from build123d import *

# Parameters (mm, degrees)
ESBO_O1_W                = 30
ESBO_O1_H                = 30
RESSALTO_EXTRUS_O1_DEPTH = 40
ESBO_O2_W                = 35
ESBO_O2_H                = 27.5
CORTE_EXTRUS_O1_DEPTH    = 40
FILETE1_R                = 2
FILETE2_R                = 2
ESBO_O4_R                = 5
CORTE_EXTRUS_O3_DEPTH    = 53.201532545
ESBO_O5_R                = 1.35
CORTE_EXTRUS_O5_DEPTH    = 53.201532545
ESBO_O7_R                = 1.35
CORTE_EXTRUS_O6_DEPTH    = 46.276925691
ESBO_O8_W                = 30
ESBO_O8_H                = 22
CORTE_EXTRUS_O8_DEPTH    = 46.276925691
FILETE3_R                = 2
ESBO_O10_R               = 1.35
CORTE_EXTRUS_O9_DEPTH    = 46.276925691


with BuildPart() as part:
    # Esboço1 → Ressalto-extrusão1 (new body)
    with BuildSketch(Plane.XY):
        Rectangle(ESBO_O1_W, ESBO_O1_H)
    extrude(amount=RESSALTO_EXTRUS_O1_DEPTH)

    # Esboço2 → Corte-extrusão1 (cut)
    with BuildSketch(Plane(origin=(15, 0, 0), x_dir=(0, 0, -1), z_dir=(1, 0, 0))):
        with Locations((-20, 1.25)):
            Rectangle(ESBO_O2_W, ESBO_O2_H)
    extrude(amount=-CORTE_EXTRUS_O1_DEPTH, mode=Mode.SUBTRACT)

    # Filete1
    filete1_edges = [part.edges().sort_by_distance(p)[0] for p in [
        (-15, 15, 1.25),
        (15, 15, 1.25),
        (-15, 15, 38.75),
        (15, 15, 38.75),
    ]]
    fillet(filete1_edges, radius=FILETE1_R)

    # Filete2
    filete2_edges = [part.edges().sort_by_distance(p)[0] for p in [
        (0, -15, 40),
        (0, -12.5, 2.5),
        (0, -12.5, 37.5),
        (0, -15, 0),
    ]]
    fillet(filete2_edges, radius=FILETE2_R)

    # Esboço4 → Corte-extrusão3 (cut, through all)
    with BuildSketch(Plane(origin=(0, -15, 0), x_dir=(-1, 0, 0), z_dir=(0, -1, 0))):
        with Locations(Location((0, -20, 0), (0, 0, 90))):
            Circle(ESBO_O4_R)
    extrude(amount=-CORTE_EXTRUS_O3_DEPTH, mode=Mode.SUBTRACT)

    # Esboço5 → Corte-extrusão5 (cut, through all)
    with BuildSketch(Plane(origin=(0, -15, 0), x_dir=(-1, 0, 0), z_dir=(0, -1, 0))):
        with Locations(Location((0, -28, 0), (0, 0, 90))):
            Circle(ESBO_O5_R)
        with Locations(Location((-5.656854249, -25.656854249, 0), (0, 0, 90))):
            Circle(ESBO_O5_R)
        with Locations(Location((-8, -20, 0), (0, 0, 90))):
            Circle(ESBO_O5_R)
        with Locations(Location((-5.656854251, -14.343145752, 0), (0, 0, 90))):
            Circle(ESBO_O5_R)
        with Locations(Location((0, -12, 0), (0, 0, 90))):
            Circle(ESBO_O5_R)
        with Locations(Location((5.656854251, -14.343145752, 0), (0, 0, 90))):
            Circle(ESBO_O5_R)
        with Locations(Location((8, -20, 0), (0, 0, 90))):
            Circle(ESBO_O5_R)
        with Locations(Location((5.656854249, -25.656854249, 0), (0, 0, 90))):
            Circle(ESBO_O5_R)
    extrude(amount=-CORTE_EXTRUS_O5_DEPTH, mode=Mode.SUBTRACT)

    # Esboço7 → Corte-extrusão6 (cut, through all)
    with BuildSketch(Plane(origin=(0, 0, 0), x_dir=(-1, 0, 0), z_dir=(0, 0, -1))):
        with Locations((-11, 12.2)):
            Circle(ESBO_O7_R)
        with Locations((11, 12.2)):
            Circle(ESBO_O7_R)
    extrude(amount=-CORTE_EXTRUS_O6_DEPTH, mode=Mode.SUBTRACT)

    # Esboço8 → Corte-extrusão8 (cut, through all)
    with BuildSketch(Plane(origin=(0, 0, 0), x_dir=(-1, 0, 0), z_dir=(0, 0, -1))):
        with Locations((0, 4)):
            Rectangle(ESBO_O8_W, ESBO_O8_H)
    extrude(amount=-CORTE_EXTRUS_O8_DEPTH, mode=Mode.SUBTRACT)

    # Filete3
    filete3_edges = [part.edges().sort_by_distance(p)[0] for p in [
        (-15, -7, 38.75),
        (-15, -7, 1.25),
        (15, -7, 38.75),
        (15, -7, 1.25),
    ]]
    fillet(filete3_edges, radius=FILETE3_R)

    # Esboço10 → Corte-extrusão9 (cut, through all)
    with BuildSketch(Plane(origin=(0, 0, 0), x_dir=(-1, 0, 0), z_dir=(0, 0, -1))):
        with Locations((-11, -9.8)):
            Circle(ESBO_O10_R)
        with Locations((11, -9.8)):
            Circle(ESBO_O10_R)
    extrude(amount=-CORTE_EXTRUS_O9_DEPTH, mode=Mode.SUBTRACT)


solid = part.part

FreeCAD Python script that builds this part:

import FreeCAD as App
import Part
import Sketcher

V = App.Vector


def edges_at(feature, points):
    """Names of the edges that pass closest to the given points."""
    edges = feature.Shape.Edges
    near = lambda p: min(range(len(edges)), key=lambda i: edges[i].distToShape(Part.Vertex(*p))[0])
    return sorted({f"Edge{near(p) + 1}" for p in points})

doc = App.newDocument("Part")
params = doc.addObject("Spreadsheet::Sheet", "Params")
for row, (alias, value) in enumerate([
    ("sketch1_width", "30 mm"),
    ("pad1_length", "40 mm"),
    ("sketch2_height", "35 mm"),
    ("sketch2_width", "27.5 mm"),
    ("pocket1_length", "40 mm"),
    ("fillet_radius", "2 mm"),
    ("fillet2_radius", "2 mm"),
    ("sketch3_diameter", "10 mm"),
    ("sketch4_diameter", "2.7 mm"),
    ("sketch5_diameter", "2.7 mm"),
    ("sketch6_width", "30 mm"),
    ("sketch6_height", "22 mm"),
    ("fillet3_radius", "2 mm"),
    ("sketch7_diameter", "2.7 mm"),
], start=1):
    params.set(f"A{row}", alias)
    params.set(f"B{row}", "=" + value)
    params.setAlias(f"B{row}", alias)

body = doc.addObject("PartDesign::Body", "Body")

# Sketch on XY plane
sketch1 = body.newObject("Sketcher::SketchObject", "Sketch")
sketch1.AttachmentSupport = (doc.getObject("XY_Plane"), [""])
sketch1.MapMode = "FlatFace"
sketch1.addGeometry([
    Part.LineSegment(V(-15, 15, 0), V(-15, -15, 0)),
    Part.LineSegment(V(-15, -15, 0), V(15, -15, 0)),
    Part.LineSegment(V(15, -15, 0), V(15, 15, 0)),
    Part.LineSegment(V(15, 15, 0), V(-15, 15, 0)),
], False)
sketch1.addConstraint([
    Sketcher.Constraint("Coincident", 0, 2, 1, 1),
    Sketcher.Constraint("Coincident", 1, 2, 2, 1),
    Sketcher.Constraint("Coincident", 2, 2, 3, 1),
    Sketcher.Constraint("Coincident", 3, 2, 0, 1),
    Sketcher.Constraint("Vertical", 0),
    Sketcher.Constraint("Horizontal", 1),
    Sketcher.Constraint("Vertical", 2),
    Sketcher.Constraint("Horizontal", 3),
    Sketcher.Constraint("Symmetric", 0, 2, 2, 2, -1, 1),
    Sketcher.Constraint("Equal", 3, 0),
    Sketcher.Constraint("DistanceX", 1, 1, 1, 2, 30.0),
])
sketch1.setExpression("Constraints[10]", "Params.sketch1_width")
pad1 = body.newObject("PartDesign::Pad", "Pad")
pad1.Profile = sketch1
pad1.setExpression("Length", "Params.pad1_length")

# Sketch on YZ plane
sketch2 = body.newObject("Sketcher::SketchObject", "Sketch001")
sketch2.AttachmentSupport = (doc.getObject("YZ_Plane"), [""])
sketch2.MapMode = "FlatFace"
sketch2.AttachmentOffset = App.Placement(V(0, 0, 15), App.Rotation())
sketch2.addGeometry([
    Part.LineSegment(V(15, 38, 0), V(-12, 38, 0)),
    Part.LineSegment(V(-12, 38, 0), V(-12, 2, 0)),
    Part.LineSegment(V(-12, 2, 0), V(15, 2, 0)),
    Part.LineSegment(V(15, 2, 0), V(15, 38, 0)),
], False)
sketch2.addConstraint([
    Sketcher.Constraint("Coincident", 0, 2, 1, 1),
    Sketcher.Constraint("Coincident", 1, 2, 2, 1),
    Sketcher.Constraint("Coincident", 2, 2, 3, 1),
    Sketcher.Constraint("Coincident", 3, 2, 0, 1),
    Sketcher.Constraint("Horizontal", 0),
    Sketcher.Constraint("Vertical", 1),
    Sketcher.Constraint("Horizontal", 2),
    Sketcher.Constraint("Vertical", 3),
    Sketcher.Constraint("DistanceY", 1, 2, 1, 1, 35.0),
    Sketcher.Constraint("DistanceX", 0, 2, 0, 1, 27.5),
    Sketcher.Constraint("DistanceX", -1, 1, 2, 2, 15.0),
    Sketcher.Constraint("DistanceY", -1, 1, 0, 2, 37.5),
])
sketch2.setExpression("Constraints[8]", "Params.sketch2_height")
sketch2.setExpression("Constraints[9]", "Params.sketch2_width")
pocket1 = body.newObject("PartDesign::Pocket", "Pocket")
pocket1.Profile = sketch2
pocket1.setExpression("Length", "Params.pocket1_length")
doc.recompute()

fillet = body.newObject("PartDesign::Fillet", "Fillet")
fillet.Base = (pocket1, edges_at(pocket1, [
    (-15, 15, 1.25),
    (15, 15, 1.25),
    (-15, 15, 38.75),
    (15, 15, 38.75),
]))
fillet.setExpression("Radius", "Params.fillet_radius")
doc.recompute()

fillet2 = body.newObject("PartDesign::Fillet", "Fillet001")
fillet2.Base = (fillet, edges_at(fillet, [
    (0, -15, 40),
    (0, -12.5, 2.5),
    (0, -12.5, 37.5),
    (0, -15, 0),
]))
fillet2.setExpression("Radius", "Params.fillet2_radius")

# Sketch on XZ plane
sketch3 = body.newObject("Sketcher::SketchObject", "Sketch002")
sketch3.AttachmentSupport = (doc.getObject("XZ_Plane"), [""])
sketch3.MapMode = "FlatFace"
sketch3.AttachmentOffset = App.Placement(V(0, 0, 15), App.Rotation())
sketch3.addGeometry(Part.Circle(V(0, 20, 0), V(0, 0, 1), 5), False)
sketch3.addConstraint([
    Sketcher.Constraint("PointOnObject", 0, 3, -2),
    Sketcher.Constraint("Diameter", 0, 10.0),
    Sketcher.Constraint("DistanceY", -1, 1, 0, 3, 20.0),
])
sketch3.setExpression("Constraints[1]", "Params.sketch3_diameter")
pocket2 = body.newObject("PartDesign::Pocket", "Pocket001")
pocket2.Profile = sketch3
pocket2.Type = "ThroughAll"

# Sketch on XZ plane
sketch4 = body.newObject("Sketcher::SketchObject", "Sketch003")
sketch4.AttachmentSupport = (doc.getObject("XZ_Plane"), [""])
sketch4.MapMode = "FlatFace"
sketch4.AttachmentOffset = App.Placement(V(0, 0, 15), App.Rotation())
sketch4.addGeometry([
    Part.Circle(V(0, 28, 0), V(0, 0, 1), 1.4),  # 0
    Part.Circle(V(5.7, 25.7, 0), V(0, 0, 1), 1.4),  # 1
    Part.Circle(V(8, 20, 0), V(0, 0, 1), 1.4),  # 2
    Part.Circle(V(5.7, 14.3, 0), V(0, 0, 1), 1.4),  # 3
    Part.Circle(V(0, 12, 0), V(0, 0, 1), 1.4),  # 4
    Part.Circle(V(-5.7, 14.3, 0), V(0, 0, 1), 1.4),  # 5
    Part.Circle(V(-8, 20, 0), V(0, 0, 1), 1.4),  # 6
    Part.Circle(V(-5.7, 25.7, 0), V(0, 0, 1), 1.4),  # 7
], False)
sketch4.addConstraint([
    Sketcher.Constraint("Equal", 0, 1),
    Sketcher.Constraint("Equal", 1, 2),
    Sketcher.Constraint("Equal", 2, 3),
    Sketcher.Constraint("Equal", 3, 4),
    Sketcher.Constraint("Equal", 4, 5),
    Sketcher.Constraint("Equal", 5, 6),
    Sketcher.Constraint("Equal", 6, 7),
    Sketcher.Constraint("Symmetric", 3, 3, 5, 3, -2),
    Sketcher.Constraint("Symmetric", 2, 3, 6, 3, -2),
    Sketcher.Constraint("Symmetric", 1, 3, 7, 3, -2),
    Sketcher.Constraint("PointOnObject", 0, 3, -2),
    Sketcher.Constraint("PointOnObject", 4, 3, -2),
    Sketcher.Constraint("Vertical", 1, 3, 3, 3),
    Sketcher.Constraint("Diameter", 0, 2.7),
    Sketcher.Constraint("DistanceY", -1, 1, 0, 3, 28.0),
    Sketcher.Constraint("DistanceX", -1, 1, 2, 3, 8.0),
    Sketcher.Constraint("DistanceY", -1, 1, 2, 3, 20.0),
    Sketcher.Constraint("DistanceY", -1, 1, 4, 3, 12.0),
    Sketcher.Constraint("DistanceY", 3, 3, 1, 3, 11.313708),
    Sketcher.Constraint("DistanceX", 5, 3, 3, 3, 11.313709),
    Sketcher.Constraint("DistanceY", -1, 1, 1, 3, 25.656854),
])
sketch4.setExpression("Constraints[13]", "Params.sketch4_diameter")
pocket3 = body.newObject("PartDesign::Pocket", "Pocket002")
pocket3.Profile = sketch4
pocket3.Type = "ThroughAll"

# Sketch on XY plane
sketch5 = body.newObject("Sketcher::SketchObject", "Sketch004")
sketch5.AttachmentSupport = (doc.getObject("XY_Plane"), [""])
sketch5.MapMode = "FlatFace"
sketch5.addGeometry([
    Part.Circle(V(11, 12.2, 0), V(0, 0, 1), 1.4),
    Part.Circle(V(-11, 12.2, 0), V(0, 0, 1), 1.4),
], False)
sketch5.addConstraint([
    Sketcher.Constraint("Equal", 0, 1),
    Sketcher.Constraint("Symmetric", 0, 3, 1, 3, -2),
    Sketcher.Constraint("Diameter", 0, 2.7),
    Sketcher.Constraint("DistanceX", -1, 1, 0, 3, 11.0),
    Sketcher.Constraint("DistanceY", -1, 1, 0, 3, 12.2),
])
sketch5.setExpression("Constraints[2]", "Params.sketch5_diameter")
pocket4 = body.newObject("PartDesign::Pocket", "Pocket003")
pocket4.Profile = sketch5
pocket4.Type = "ThroughAll"
pocket4.Reversed = True

# Sketch on XY plane
sketch6 = body.newObject("Sketcher::SketchObject", "Sketch005")
sketch6.AttachmentSupport = (doc.getObject("XY_Plane"), [""])
sketch6.MapMode = "FlatFace"
sketch6.addGeometry([
    Part.LineSegment(V(15, 15, 0), V(15, -7, 0)),
    Part.LineSegment(V(15, -7, 0), V(-15, -7, 0)),
    Part.LineSegment(V(-15, -7, 0), V(-15, 15, 0)),
    Part.LineSegment(V(-15, 15, 0), V(15, 15, 0)),
], False)
sketch6.addConstraint([
    Sketcher.Constraint("Coincident", 0, 2, 1, 1),
    Sketcher.Constraint("Coincident", 1, 2, 2, 1),
    Sketcher.Constraint("Coincident", 2, 2, 3, 1),
    Sketcher.Constraint("Coincident", 3, 2, 0, 1),
    Sketcher.Constraint("Vertical", 0),
    Sketcher.Constraint("Horizontal", 1),
    Sketcher.Constraint("Vertical", 2),
    Sketcher.Constraint("Horizontal", 3),
    Sketcher.Constraint("DistanceX", 1, 2, 1, 1, 30.0),
    Sketcher.Constraint("DistanceY", 0, 2, 0, 1, 22.0),
    Sketcher.Constraint("DistanceX", -1, 1, 0, 2, 15.0),
    Sketcher.Constraint("DistanceY", 0, 2, -1, 1, 7.0),
])
sketch6.setExpression("Constraints[8]", "Params.sketch6_width")
sketch6.setExpression("Constraints[9]", "Params.sketch6_height")
pocket5 = body.newObject("PartDesign::Pocket", "Pocket004")
pocket5.Profile = sketch6
pocket5.Type = "ThroughAll"
pocket5.Reversed = True
doc.recompute()

fillet3 = body.newObject("PartDesign::Fillet", "Fillet002")
fillet3.Base = (pocket5, edges_at(pocket5, [
    (-15, -7, 38.75),
    (-15, -7, 1.25),
    (15, -7, 38.75),
    (15, -7, 1.25),
]))
fillet3.setExpression("Radius", "Params.fillet3_radius")

# Sketch on XY plane
sketch7 = body.newObject("Sketcher::SketchObject", "Sketch006")
sketch7.AttachmentSupport = (doc.getObject("XY_Plane"), [""])
sketch7.MapMode = "FlatFace"
sketch7.addGeometry([
    Part.Circle(V(11, -9.8, 0), V(0, 0, 1), 1.4),
    Part.Circle(V(-11, -9.8, 0), V(0, 0, 1), 1.4),
], False)
sketch7.addConstraint([
    Sketcher.Constraint("Equal", 0, 1),
    Sketcher.Constraint("Symmetric", 0, 3, 1, 3, -2),
    Sketcher.Constraint("Diameter", 0, 2.7),
    Sketcher.Constraint("DistanceX", -1, 1, 0, 3, 11.0),
    Sketcher.Constraint("DistanceY", 0, 3, -1, 1, 9.8),
])
sketch7.setExpression("Constraints[2]", "Params.sketch7_diameter")
pocket6 = body.newObject("PartDesign::Pocket", "Pocket005")
pocket6.Profile = sketch7
pocket6.Type = "ThroughAll"
pocket6.Reversed = True

doc.recompute()
